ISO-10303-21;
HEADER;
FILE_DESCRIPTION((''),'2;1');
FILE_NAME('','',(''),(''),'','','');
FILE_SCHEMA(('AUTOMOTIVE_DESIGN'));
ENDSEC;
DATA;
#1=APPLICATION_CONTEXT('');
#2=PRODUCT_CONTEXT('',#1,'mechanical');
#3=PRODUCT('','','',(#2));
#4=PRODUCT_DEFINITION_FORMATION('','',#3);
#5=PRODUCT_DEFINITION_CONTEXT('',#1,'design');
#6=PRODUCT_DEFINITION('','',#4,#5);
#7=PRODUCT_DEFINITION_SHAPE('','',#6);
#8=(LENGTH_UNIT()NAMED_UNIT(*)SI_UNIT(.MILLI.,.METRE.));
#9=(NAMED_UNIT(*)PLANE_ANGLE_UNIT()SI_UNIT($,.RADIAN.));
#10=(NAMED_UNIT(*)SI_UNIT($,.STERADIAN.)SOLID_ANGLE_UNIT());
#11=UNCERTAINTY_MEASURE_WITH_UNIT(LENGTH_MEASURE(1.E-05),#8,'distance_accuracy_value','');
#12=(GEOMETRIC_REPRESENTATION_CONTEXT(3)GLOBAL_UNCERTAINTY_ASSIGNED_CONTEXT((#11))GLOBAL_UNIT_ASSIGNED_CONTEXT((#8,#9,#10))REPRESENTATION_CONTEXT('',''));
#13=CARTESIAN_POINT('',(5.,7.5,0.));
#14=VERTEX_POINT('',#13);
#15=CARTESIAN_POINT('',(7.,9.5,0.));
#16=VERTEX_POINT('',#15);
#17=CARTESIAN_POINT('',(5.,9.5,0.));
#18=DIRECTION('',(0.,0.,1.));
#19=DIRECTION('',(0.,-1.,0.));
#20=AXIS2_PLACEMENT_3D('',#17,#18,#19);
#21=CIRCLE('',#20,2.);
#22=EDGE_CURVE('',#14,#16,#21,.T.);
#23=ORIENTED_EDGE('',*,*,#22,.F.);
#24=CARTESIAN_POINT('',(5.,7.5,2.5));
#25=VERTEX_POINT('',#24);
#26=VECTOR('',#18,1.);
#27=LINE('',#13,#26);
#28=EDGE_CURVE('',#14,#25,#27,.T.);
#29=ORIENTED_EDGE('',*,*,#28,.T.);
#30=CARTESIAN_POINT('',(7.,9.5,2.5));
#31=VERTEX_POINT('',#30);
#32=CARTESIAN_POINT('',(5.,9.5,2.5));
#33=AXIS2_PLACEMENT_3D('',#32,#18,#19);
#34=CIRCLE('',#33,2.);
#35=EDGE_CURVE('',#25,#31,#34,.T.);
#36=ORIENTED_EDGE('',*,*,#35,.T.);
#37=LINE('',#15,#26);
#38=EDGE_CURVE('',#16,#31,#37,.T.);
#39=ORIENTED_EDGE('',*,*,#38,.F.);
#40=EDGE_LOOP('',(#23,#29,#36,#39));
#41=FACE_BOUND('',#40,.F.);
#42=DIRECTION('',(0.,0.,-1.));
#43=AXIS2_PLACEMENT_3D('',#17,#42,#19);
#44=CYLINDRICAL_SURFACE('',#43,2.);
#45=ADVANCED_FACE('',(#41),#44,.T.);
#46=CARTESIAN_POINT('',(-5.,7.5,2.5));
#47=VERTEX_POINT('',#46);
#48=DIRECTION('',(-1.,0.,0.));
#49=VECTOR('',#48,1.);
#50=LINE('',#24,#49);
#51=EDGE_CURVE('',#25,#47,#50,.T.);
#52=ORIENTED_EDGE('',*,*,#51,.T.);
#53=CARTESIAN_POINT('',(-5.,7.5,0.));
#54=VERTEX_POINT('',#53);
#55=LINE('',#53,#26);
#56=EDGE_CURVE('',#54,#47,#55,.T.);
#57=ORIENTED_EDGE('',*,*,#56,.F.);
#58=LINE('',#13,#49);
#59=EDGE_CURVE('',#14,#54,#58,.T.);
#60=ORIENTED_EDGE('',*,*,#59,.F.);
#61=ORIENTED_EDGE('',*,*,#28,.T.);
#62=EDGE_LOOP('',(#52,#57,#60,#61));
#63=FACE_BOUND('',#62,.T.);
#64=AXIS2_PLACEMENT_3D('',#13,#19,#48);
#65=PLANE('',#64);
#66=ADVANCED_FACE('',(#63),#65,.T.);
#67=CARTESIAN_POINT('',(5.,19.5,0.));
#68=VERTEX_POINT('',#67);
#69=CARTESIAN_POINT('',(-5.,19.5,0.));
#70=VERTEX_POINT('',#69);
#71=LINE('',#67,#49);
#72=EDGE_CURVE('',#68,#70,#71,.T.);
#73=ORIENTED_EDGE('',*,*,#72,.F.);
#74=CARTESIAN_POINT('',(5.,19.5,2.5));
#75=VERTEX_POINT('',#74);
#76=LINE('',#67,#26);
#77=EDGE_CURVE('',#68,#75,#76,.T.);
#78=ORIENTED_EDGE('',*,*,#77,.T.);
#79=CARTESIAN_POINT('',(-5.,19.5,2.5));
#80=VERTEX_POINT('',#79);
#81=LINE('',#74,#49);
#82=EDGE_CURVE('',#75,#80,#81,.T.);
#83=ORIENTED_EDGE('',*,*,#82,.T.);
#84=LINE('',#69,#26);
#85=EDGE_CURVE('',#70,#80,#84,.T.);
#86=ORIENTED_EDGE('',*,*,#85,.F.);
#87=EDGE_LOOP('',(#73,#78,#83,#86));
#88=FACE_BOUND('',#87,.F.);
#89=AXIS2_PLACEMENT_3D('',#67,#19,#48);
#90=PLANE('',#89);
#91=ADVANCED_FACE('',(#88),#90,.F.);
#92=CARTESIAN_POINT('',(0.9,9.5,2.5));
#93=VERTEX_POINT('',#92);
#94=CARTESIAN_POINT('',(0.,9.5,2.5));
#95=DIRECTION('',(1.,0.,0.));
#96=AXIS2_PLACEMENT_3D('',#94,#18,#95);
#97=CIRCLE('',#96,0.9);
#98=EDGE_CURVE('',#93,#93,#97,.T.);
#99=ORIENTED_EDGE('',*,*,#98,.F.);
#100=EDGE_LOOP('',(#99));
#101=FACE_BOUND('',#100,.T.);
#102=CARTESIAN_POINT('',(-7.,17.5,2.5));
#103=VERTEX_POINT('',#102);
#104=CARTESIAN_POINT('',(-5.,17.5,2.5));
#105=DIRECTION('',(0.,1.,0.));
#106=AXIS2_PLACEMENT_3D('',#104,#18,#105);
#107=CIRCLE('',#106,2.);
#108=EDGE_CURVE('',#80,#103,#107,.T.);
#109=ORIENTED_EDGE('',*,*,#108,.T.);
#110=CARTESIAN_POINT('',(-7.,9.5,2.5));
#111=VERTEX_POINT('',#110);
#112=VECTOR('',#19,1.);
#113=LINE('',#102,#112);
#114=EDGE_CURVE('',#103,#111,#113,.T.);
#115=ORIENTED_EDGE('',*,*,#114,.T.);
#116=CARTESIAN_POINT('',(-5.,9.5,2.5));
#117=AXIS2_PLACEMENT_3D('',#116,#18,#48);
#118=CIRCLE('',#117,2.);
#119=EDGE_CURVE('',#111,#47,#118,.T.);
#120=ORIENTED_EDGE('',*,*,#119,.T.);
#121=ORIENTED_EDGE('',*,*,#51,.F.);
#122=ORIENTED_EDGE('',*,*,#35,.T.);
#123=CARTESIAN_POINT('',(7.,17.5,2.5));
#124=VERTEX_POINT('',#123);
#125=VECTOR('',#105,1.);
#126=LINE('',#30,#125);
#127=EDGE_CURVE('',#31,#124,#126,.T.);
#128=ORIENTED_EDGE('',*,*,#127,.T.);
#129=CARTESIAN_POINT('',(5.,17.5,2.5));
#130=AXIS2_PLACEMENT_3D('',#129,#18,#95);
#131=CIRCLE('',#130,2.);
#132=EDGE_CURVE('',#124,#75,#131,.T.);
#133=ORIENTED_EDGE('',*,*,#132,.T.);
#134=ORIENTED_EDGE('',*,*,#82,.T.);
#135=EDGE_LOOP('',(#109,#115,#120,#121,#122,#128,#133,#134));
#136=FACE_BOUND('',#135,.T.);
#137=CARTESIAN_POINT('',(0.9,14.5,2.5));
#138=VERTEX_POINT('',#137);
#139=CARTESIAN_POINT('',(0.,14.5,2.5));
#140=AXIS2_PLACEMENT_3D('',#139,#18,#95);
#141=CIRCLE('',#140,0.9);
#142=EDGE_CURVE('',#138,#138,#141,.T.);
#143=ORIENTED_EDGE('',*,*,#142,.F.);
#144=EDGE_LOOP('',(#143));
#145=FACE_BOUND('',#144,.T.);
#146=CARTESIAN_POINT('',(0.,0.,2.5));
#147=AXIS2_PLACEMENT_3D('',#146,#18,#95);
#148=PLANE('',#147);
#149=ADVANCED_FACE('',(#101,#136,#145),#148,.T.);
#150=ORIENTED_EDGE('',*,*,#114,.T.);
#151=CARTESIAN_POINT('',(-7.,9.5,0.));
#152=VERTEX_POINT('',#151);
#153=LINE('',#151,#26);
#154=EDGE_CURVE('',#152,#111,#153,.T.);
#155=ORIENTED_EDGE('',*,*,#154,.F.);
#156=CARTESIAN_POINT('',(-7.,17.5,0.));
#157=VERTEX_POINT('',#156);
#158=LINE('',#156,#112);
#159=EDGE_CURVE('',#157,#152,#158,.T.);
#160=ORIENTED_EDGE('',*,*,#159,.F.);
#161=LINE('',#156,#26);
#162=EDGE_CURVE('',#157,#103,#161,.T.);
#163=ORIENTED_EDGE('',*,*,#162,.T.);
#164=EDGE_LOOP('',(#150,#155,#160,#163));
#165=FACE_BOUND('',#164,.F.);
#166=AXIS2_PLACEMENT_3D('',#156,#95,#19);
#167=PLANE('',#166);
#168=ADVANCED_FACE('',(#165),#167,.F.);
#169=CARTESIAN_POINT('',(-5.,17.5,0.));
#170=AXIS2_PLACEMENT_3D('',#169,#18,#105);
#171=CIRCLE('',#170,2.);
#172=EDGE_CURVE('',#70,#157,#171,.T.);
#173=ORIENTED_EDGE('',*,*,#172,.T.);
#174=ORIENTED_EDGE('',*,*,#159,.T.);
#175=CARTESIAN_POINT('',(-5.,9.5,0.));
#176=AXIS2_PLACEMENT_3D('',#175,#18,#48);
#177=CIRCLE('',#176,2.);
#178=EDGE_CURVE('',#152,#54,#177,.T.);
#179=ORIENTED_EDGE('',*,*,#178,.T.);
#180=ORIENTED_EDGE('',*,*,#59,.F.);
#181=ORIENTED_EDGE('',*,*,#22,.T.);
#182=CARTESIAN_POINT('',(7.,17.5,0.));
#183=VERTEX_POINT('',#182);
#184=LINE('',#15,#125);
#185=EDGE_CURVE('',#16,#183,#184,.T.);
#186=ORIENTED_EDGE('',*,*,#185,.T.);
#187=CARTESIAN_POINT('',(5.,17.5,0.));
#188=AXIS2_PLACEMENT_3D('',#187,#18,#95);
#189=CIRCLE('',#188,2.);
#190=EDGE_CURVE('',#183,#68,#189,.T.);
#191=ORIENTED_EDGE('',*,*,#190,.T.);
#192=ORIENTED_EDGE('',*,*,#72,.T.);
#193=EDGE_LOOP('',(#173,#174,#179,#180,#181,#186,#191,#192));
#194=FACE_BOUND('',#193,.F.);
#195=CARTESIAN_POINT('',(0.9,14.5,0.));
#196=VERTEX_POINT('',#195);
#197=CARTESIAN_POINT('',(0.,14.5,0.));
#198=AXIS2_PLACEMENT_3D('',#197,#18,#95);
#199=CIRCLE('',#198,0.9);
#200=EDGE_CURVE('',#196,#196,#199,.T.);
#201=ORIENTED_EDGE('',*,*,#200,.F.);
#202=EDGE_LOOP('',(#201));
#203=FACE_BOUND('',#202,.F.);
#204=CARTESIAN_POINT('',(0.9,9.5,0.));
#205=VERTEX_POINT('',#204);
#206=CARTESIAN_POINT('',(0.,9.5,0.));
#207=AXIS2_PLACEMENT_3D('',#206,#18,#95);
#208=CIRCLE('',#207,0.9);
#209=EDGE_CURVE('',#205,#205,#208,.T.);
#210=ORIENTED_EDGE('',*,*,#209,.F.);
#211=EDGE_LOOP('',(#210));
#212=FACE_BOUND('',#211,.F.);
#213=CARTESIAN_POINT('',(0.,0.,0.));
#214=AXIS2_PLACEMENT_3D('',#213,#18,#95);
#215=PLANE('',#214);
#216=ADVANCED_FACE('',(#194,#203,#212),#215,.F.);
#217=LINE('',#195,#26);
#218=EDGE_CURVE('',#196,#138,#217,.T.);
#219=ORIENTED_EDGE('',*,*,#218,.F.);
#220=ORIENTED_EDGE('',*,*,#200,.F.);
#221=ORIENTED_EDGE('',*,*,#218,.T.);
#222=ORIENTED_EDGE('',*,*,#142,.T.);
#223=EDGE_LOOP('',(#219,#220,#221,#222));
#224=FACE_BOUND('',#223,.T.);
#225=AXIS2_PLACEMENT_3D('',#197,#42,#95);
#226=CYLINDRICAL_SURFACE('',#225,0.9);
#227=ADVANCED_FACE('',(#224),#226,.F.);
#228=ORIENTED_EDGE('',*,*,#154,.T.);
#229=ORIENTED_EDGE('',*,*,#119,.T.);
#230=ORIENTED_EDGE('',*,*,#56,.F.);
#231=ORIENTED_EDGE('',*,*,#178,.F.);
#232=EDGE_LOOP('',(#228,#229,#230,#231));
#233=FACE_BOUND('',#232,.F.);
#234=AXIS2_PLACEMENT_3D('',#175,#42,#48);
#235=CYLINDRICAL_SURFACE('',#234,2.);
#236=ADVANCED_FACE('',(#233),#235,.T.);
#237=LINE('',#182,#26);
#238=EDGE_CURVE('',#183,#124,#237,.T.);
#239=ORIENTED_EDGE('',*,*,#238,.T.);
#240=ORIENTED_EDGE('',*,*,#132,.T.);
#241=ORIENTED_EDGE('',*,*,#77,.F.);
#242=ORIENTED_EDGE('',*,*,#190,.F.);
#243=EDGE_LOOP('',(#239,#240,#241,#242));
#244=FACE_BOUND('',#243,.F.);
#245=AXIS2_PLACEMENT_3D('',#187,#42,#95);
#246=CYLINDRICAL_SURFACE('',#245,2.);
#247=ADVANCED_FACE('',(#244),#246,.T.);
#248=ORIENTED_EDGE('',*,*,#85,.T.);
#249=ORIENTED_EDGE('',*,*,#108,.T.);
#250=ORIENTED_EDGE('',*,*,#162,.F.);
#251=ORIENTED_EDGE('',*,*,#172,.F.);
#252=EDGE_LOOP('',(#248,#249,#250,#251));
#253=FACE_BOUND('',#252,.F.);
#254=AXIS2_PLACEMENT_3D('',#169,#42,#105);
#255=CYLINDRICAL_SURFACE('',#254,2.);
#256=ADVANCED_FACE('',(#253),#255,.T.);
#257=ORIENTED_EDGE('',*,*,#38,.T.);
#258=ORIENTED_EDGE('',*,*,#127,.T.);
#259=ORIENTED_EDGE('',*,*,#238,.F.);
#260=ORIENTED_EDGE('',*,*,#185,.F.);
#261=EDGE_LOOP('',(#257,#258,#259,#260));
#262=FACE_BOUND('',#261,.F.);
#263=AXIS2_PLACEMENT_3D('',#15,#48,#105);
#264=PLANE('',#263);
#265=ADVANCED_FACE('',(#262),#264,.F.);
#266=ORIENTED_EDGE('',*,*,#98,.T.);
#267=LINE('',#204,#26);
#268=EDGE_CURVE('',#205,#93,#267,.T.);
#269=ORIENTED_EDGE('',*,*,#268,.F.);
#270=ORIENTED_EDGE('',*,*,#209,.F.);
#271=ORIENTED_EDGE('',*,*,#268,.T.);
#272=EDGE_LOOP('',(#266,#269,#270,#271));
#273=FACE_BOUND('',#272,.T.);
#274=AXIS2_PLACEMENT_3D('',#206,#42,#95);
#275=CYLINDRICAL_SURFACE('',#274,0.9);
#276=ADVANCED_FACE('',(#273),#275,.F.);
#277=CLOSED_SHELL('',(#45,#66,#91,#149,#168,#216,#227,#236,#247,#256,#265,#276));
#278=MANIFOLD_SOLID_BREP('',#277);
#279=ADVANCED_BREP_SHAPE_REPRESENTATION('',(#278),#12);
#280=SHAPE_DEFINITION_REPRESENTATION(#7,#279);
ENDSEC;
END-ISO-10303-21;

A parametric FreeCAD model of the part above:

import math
import FreeCAD as App
import Part
import Sketcher
from FreeCAD import Vector

doc = App.newDocument("Part")
body = doc.addObject("PartDesign::Body", "Body")

# Sketch on XY plane
sketch1 = body.newObject("Sketcher::SketchObject", "Sketch")
sketch1.AttachmentSupport = (doc.getObject("XY_Plane"), [""])
sketch1.MapMode = "FlatFace"
sketch1.addGeometry([
    Part.LineSegment(Vector(7, 9.5, 0), Vector(7, 17.5, 0)),  # 0
    Part.ArcOfCircle(Part.Circle(Vector(5, 17.5, 0), Vector(0, 0, 1), 2), math.radians(0), math.radians(90)),  # 1
    Part.LineSegment(Vector(5, 19.5, 0), Vector(-5, 19.5, 0)),  # 2
    Part.ArcOfCircle(Part.Circle(Vector(-5, 17.5, 0), Vector(0, 0, 1), 2), math.radians(90), math.radians(180)),  # 3
    Part.LineSegment(Vector(-7, 17.5, 0), Vector(-7, 9.5, 0)),  # 4
    Part.ArcOfCircle(Part.Circle(Vector(-5, 9.5, 0), Vector(0, 0, 1), 2), math.radians(180), math.radians(270)),  # 5
    Part.LineSegment(Vector(-5, 7.5, 0), Vector(5, 7.5, 0)),  # 6
    Part.ArcOfCircle(Part.Circle(Vector(5, 9.5, 0), Vector(0, 0, 1), 2), math.radians(-90), math.radians(0)),  # 7
    Part.Circle(Vector(0, 9.5, 0), Vector(0, 0, 1), 0.9),  # 8
    Part.Circle(Vector(0, 14.5, 0), Vector(0, 0, 1), 0.9),  # 9
], False)
sketch1.addConstraint([
    Sketcher.Constraint("Tangent", 0, 2, 1, 1),
    Sketcher.Constraint("Tangent", 1, 2, 2, 1),
    Sketcher.Constraint("Tangent", 2, 2, 3, 1),
    Sketcher.Constraint("Tangent", 3, 2, 4, 1),
    Sketcher.Constraint("Tangent", 4, 2, 5, 1),
    Sketcher.Constraint("Tangent", 5, 2, 6, 1),
    Sketcher.Constraint("Tangent", 6, 2, 7, 1),
    Sketcher.Constraint("Tangent", 7, 2, 0, 1),
    Sketcher.Constraint("Vertical", 0),
    Sketcher.Constraint("Horizontal", 2),
    Sketcher.Constraint("Vertical", 4),
    Sketcher.Constraint("Horizontal", 6),
    Sketcher.Constraint("Equal", 1, 3),
    Sketcher.Constraint("Equal", 3, 5),
    Sketcher.Constraint("Equal", 5, 7),
    Sketcher.Constraint("Equal", 8, 9),
    Sketcher.Constraint("PointOnObject", 8, 3, -2),
    Sketcher.Constraint("PointOnObject", 9, 3, -2),
    Sketcher.Constraint("Horizontal", 7, 3, 8, 3),
    Sketcher.Constraint("Radius", 1, 2.0),
    Sketcher.Constraint("Diameter", 8, 1.8),
    Sketcher.Constraint("DistanceX", 2, 2, 2, 1, 10.0),
    Sketcher.Constraint("DistanceY", 0, 1, 0, 2, 8.0),
    Sketcher.Constraint("DistanceX", -1, 1, 1, 3, 5.0),
    Sketcher.Constraint("DistanceY", 8, 3, 9, 3, 5.0),
    Sketcher.Constraint("DistanceY", -1, 1, 1, 3, 17.5),
])
pad1 = body.newObject("PartDesign::Pad", "Pad")
pad1.Profile = sketch1
pad1.Length = 2.5

doc.recompute()
